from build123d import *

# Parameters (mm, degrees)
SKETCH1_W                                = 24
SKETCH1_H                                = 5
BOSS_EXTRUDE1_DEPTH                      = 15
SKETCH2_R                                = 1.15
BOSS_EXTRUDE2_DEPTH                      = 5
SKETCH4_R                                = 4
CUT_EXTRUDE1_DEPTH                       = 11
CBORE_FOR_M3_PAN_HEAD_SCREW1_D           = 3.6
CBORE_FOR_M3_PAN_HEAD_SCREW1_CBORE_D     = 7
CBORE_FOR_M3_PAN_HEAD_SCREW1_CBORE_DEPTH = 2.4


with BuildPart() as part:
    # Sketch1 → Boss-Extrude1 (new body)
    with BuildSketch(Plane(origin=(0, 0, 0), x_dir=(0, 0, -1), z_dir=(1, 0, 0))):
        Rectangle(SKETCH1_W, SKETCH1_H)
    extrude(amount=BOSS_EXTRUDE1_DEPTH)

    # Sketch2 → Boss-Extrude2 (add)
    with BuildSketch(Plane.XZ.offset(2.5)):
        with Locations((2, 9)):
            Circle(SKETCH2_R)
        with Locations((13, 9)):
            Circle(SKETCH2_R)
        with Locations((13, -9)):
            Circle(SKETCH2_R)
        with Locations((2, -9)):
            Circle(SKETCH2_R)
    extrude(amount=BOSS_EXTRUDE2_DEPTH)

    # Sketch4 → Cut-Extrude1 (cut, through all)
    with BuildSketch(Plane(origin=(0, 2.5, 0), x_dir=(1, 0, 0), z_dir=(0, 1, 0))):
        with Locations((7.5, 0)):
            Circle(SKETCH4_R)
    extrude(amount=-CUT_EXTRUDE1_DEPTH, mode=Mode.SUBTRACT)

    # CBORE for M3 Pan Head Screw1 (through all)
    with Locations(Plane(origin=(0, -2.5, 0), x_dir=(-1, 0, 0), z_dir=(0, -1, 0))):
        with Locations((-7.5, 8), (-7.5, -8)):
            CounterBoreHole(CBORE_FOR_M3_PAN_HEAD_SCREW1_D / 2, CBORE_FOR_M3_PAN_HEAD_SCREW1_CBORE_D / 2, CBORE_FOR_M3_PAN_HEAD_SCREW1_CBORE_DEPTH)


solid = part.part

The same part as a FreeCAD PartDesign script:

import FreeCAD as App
import Part
import Sketcher

V = App.Vector
Q = App.Units.Quantity


def add_polygon(sketch, points):
    """Adds a closed chain of lines whose ends are joined by coincident constraints."""
    first, n = sketch.GeometryCount, len(points)
    for a, b in zip(points, points[1:] + points[:1]):
        sketch.addGeometry(Part.LineSegment(App.Vector(*a, 0), App.Vector(*b, 0)), False)
    for i in range(n):
        sketch.addConstraint(Sketcher.Constraint("Coincident", first + i, 2, first + (i + 1) % n, 1))

doc = App.newDocument("Part")
params = doc.addObject("Spreadsheet::Sheet", "Params")
for row, (alias, value) in enumerate([
    ("sketch1_width", "5 mm"),
    ("sketch1_height", "24 mm"),
    ("pad1_length", "15 mm"),
    ("sketch2_diameter", "2.3 mm"),
    ("pad2_length", "5 mm"),
    ("sketch3_diameter", "8 mm"),
    ("sketch4_diameter", "3.6 mm"),
    ("hole_diameter", "3.6 mm"),
    ("hole_cbore_diameter", "7 mm"),
    ("hole_cbore_depth", "2.4 mm"),
], start=1):
    params.set(f"A{row}", alias)
    params.set(f"B{row}", "=" + value)
    params.setAlias(f"B{row}", alias)

body = doc.addObject("PartDesign::Body", "Body")

# Sketch on YZ plane
sketch1 = doc.addObject("Sketcher::SketchObject", "Sketch")
body.addObject(sketch1)
sketch1.AttachmentSupport = (doc.YZ_Plane, [""])
sketch1.MapMode = "FlatFace"
add_polygon(sketch1, [(2, 12), (-2, 12), (-2, -12), (2, -12)])  # lines 0-3
sketch1.addConstraint(Sketcher.Constraint("Horizontal", 0))
sketch1.addConstraint(Sketcher.Constraint("Vertical", 1))
sketch1.addConstraint(Sketcher.Constraint("Horizontal", 2))
sketch1.addConstraint(Sketcher.Constraint("Vertical", 3))
sketch1.addConstraint(Sketcher.Constraint("Symmetric", 0, 2, 2, 2, -1, 1))
sketch1.addConstraint(Sketcher.Constraint("DistanceX", 0, 2, 0, 1, Q("5 mm")))
sketch1.addConstraint(Sketcher.Constraint("DistanceY", 1, 2, 1, 1, Q("24 mm")))
sketch1.setExpression("Constraints[9]", "Params.sketch1_width")
sketch1.setExpression("Constraints[10]", "Params.sketch1_height")
pad1 = doc.addObject("PartDesign::Pad", "Pad")
body.addObject(pad1)
pad1.Profile = sketch1
pad1.setExpression("Length", "Params.pad1_length")

# Sketch on XZ plane
sketch2 = doc.addObject("Sketcher::SketchObject", "Sketch001")
body.addObject(sketch2)
sketch2.AttachmentSupport = (doc.XZ_Plane, [""])
sketch2.MapMode = "FlatFace"
sketch2.AttachmentOffset = App.Placement(V(0, 0, 2.5), App.Rotation())
sketch2.addGeometry(Part.Circle(V(2, 9, 0), V(0, 0, 1), 1.1), False)
sketch2.addGeometry(Part.Circle(V(13, 9, 0), V(0, 0, 1), 1.1), False)
sketch2.addGeometry(Part.Circle(V(13, -9, 0), V(0, 0, 1), 1.1), False)
sketch2.addGeometry(Part.Circle(V(2, -9, 0), V(0, 0, 1), 1.1), False)
sketch2.addConstraint(Sketcher.Constraint("Equal", 0, 1))
sketch2.addConstraint(Sketcher.Constraint("Equal", 1, 2))
sketch2.addConstraint(Sketcher.Constraint("Equal", 2, 3))
sketch2.addConstraint(Sketcher.Constraint("Symmetric", 1, 3, 2, 3, -1))
sketch2.addConstraint(Sketcher.Constraint("Symmetric", 0, 3, 3, 3, -1))
sketch2.addConstraint(Sketcher.Constraint("Horizontal", 0, 3, 1, 3))
sketch2.addConstraint(Sketcher.Constraint("Diameter", 0, Q("2.3 mm")))
sketch2.addConstraint(Sketcher.Constraint("DistanceX", -1, 1, 0, 3, Q("2 mm")))
sketch2.addConstraint(Sketcher.Constraint("DistanceY", -1, 1, 0, 3, Q("9 mm")))
sketch2.addConstraint(Sketcher.Constraint("DistanceX", -1, 1, 1, 3, Q("13 mm")))
sketch2.setExpression("Constraints[6]", "Params.sketch2_diameter")
pad2 = doc.addObject("PartDesign::Pad", "Pad001")
body.addObject(pad2)
pad2.Profile = sketch2
pad2.setExpression("Length", "Params.pad2_length")

# Sketch on XZ plane
sketch3 = doc.addObject("Sketcher::SketchObject", "Sketch002")
body.addObject(sketch3)
sketch3.AttachmentSupport = (doc.XZ_Plane, [""])
sketch3.MapMode = "FlatFace"
sketch3.AttachmentOffset = App.Placement(V(0, 0, -2.5), App.Rotation())
sketch3.addGeometry(Part.Circle(V(7.5, 0, 0), V(0, 0, 1), 4), False)
sketch3.addConstraint(Sketcher.Constraint("PointOnObject", 0, 3, -1))
sketch3.addConstraint(Sketcher.Constraint("Diameter", 0, Q("8 mm")))
sketch3.addConstraint(Sketcher.Constraint("DistanceX", -1, 1, 0, 3, Q("7.5 mm")))
sketch3.setExpression("Constraints[1]", "Params.sketch3_diameter")
pocket1 = doc.addObject("PartDesign::Pocket", "Pocket")
body.addObject(pocket1)
pocket1.Profile = sketch3
pocket1.Type = "ThroughAll"
pocket1.Reversed = True

# Sketch on XZ plane
sketch4 = doc.addObject("Sketcher::SketchObject", "Sketch003")
body.addObject(sketch4)
sketch4.AttachmentSupport = (doc.XZ_Plane, [""])
sketch4.MapMode = "FlatFace"
sketch4.AttachmentOffset = App.Placement(V(0, 0, 2.5), App.Rotation())
sketch4.addGeometry(Part.Circle(V(7.5, -8, 0), V(0, 0, 1), 1.8), False)
sketch4.addGeometry(Part.Circle(V(7.5, 8, 0), V(0, 0, 1), 1.8), False)
sketch4.addConstraint(Sketcher.Constraint("Equal", 0, 1))
sketch4.addConstraint(Sketcher.Constraint("Symmetric", 0, 3, 1, 3, -1))
sketch4.addConstraint(Sketcher.Constraint("Diameter", 0, Q("3.6 mm")))
sketch4.addConstraint(Sketcher.Constraint("DistanceY", 0, 3, -1, 1, Q("8 mm")))
sketch4.addConstraint(Sketcher.Constraint("DistanceX", -1, 1, 0, 3, Q("7.5 mm")))
sketch4.setExpression("Constraints[2]", "Params.sketch4_diameter")
doc.recompute()
hole = doc.addObject("PartDesign::Hole", "Hole")
body.addObject(hole)
hole.Profile = sketch4
hole.ThreadType = "None"
hole.setExpression("Diameter", "Params.hole_diameter")
hole.DepthType = "ThroughAll"
hole.HoleCutType = "Counterbore"
hole.setExpression("HoleCutDiameter", "Params.hole_cbore_diameter")
hole.setExpression("HoleCutDepth", "Params.hole_cbore_depth")

doc.recompute()
